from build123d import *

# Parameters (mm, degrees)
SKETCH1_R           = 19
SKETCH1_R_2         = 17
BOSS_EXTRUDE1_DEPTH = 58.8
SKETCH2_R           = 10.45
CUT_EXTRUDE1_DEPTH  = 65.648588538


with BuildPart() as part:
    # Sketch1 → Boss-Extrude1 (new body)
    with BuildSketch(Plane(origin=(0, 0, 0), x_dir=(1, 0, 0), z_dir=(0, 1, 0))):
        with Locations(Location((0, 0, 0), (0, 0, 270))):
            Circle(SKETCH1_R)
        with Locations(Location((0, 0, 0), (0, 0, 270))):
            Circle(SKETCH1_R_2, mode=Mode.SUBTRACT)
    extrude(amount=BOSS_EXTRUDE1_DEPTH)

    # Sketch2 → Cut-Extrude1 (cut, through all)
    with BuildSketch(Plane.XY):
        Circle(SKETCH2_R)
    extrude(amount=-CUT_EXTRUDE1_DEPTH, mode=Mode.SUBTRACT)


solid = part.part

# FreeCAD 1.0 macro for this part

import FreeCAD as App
import Part
import Sketcher
Q = App.Units.Quantity

doc = App.newDocument("Part")
params = doc.addObject("Spreadsheet::Sheet", "Params")
for row, (alias, value) in enumerate([
    ("sketch1_diameter", "38 mm"),
    ("sketch1_diameter2", "34 mm"),
    ("pad1_length", "58.8 mm"),
    ("sketch2_diameter", "20.9 mm"),
], start=1):
    params.set(f"A{row}", alias)
    params.set(f"B{row}", "=" + value)
    params.setAlias(f"B{row}", alias)

body = doc.addObject("PartDesign::Body", "Body")

sketch1 = doc.addObject("Sketcher::SketchObject", "Sketch")
body.addObject(sketch1)
sketch1.AttachmentSupport = (doc.XZ_Plane, [""])
sketch1.MapMode = "FlatFace"
sketch1.addGeometry([
    Part.Circle(App.Vector(0, 0, 0), App.Vector(0, 0, 1), 19),
    Part.Circle(App.Vector(0, 0, 0), App.Vector(0, 0, 1), 17),
], False)
sketch1.addConstraint([
    Sketcher.Constraint("Coincident", 0, 3, -1, 1),
    Sketcher.Constraint("Coincident", 1, 3, -1, 1),
    Sketcher.Constraint("Diameter", 0, Q("38 mm")),
    Sketcher.Constraint("Diameter", 1, Q("34 mm")),
])
sketch1.setExpression("Constraints[2]", "Params.sketch1_diameter")
sketch1.setExpression("Constraints[3]", "Params.sketch1_diameter2")
pad1 = doc.addObject("PartDesign::Pad", "Pad")
body.addObject(pad1)
pad1.Profile = sketch1
pad1.setExpression("Length", "Params.pad1_length")
pad1.Reversed = True

sketch2 = doc.addObject("Sketcher::SketchObject", "Sketch001")
body.addObject(sketch2)
sketch2.AttachmentSupport = (doc.XY_Plane, [""])
sketch2.MapMode = "FlatFace"
sketch2.addGeometry(Part.Circle(App.Vector(0, 0, 0), App.Vector(0, 0, 1), 10), False)
sketch2.addConstraint([
    Sketcher.Constraint("Coincident", 0, 3, -1, 1),
    Sketcher.Constraint("Diameter", 0, Q("20.9 mm")),
])
sketch2.setExpression("Constraints[1]", "Params.sketch2_diameter")
pocket1 = doc.addObject("PartDesign::Pocket", "Pocket")
body.addObject(pocket1)
pocket1.Profile = sketch2
pocket1.Type = "ThroughAll"

doc.recompute()
